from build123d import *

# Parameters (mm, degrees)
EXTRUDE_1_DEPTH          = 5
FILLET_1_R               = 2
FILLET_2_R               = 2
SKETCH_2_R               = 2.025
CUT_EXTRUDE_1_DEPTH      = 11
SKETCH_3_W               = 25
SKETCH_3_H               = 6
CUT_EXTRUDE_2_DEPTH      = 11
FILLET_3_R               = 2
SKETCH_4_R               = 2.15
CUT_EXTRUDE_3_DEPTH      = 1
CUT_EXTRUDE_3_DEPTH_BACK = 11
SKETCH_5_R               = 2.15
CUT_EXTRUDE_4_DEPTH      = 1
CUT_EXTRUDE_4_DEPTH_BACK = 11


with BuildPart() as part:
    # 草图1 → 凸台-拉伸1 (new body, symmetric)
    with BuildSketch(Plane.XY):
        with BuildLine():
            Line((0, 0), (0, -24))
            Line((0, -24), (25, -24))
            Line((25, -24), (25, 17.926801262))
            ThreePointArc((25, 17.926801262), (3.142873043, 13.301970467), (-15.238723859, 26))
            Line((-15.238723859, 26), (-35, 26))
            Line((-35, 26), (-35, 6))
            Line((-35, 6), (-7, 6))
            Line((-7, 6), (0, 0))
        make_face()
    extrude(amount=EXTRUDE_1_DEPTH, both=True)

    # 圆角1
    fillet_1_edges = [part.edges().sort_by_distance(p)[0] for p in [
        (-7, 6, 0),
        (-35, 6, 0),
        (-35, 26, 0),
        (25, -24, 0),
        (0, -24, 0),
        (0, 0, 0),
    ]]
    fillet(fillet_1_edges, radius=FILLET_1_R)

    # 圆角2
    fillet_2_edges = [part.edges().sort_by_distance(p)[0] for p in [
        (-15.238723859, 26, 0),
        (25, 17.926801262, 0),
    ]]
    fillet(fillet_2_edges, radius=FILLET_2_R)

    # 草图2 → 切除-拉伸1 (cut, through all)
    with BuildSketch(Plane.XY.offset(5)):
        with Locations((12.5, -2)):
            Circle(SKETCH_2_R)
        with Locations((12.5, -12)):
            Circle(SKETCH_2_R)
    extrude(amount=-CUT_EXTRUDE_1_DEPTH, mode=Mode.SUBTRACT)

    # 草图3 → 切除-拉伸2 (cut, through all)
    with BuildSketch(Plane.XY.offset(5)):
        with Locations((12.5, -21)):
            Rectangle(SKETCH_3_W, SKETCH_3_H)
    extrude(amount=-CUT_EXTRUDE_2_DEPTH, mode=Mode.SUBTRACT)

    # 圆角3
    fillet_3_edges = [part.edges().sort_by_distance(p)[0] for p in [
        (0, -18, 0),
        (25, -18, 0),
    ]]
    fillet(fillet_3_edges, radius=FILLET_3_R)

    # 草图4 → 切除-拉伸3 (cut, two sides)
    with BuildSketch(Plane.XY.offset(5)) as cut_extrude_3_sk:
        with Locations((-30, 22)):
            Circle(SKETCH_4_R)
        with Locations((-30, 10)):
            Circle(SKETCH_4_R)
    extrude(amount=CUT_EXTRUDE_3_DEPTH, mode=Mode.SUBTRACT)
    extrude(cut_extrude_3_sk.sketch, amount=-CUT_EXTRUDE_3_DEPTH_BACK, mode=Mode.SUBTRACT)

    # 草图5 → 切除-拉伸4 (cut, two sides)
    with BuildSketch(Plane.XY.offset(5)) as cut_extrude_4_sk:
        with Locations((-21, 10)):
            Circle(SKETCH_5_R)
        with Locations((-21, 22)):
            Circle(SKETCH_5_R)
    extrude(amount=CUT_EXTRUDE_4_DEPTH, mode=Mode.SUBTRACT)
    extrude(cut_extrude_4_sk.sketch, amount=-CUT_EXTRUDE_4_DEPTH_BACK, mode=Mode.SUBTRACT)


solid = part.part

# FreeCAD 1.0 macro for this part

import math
import FreeCAD as App
import Part
import Sketcher

V = App.Vector


def edges_at(feature, points):
    """Names of the edges that pass closest to the given points."""
    edges = feature.Shape.Edges
    near = lambda p: min(range(len(edges)), key=lambda i: edges[i].distToShape(Part.Vertex(*p))[0])
    return sorted({f"Edge{near(p) + 1}" for p in points})

doc = App.newDocument("Part")
params = doc.addObject("Spreadsheet::Sheet", "Params")
for row, (alias, value) in enumerate([
    ("sketch1_width", "25 mm"),
    ("sketch1_width2", "28 mm"),
    ("sketch1_height", "24 mm"),
    ("sketch1_height2", "20 mm"),
    ("sketch1_radius", "28.25 mm"),
    ("pad1_length", "10 mm"),
    ("fillet_radius", "2 mm"),
    ("fillet2_radius", "2 mm"),
    ("sketch2_diameter", "4.05 mm"),
    ("sketch3_width", "25 mm"),
    ("sketch3_height", "6 mm"),
    ("fillet3_radius", "2 mm"),
    ("sketch4_diameter", "4.3 mm"),
    ("sketch5_diameter", "4.3 mm"),
], start=1):
    params.set(f"A{row}", alias)
    params.set(f"B{row}", "=" + value)
    params.setAlias(f"B{row}", alias)

body = doc.addObject("PartDesign::Body", "Body")

# Sketch on XY plane
sketch1 = doc.addObject("Sketcher::SketchObject", "Sketch")
body.addObject(sketch1)
sketch1.AttachmentSupport = (doc.XY_Plane, [""])
sketch1.MapMode = "FlatFace"
sketch1.addGeometry([
    Part.LineSegment(V(0, 0, 0), V(0, -24, 0)),  # 0
    Part.LineSegment(V(0, -24, 0), V(25, -24, 0)),  # 1
    Part.LineSegment(V(25, -24, 0), V(25, 18, 0)),  # 2
    Part.ArcOfCircle(Part.Circle(V(9, 41, 0), V(0, 0, 1), 28), math.radians(-148), math.radians(-55)),  # 3
    Part.LineSegment(V(-15, 26, 0), V(-35, 26, 0)),  # 4
    Part.LineSegment(V(-35, 26, 0), V(-35, 6, 0)),  # 5
    Part.LineSegment(V(-35, 6, 0), V(-7, 6, 0)),  # 6
    Part.LineSegment(V(-7, 6, 0), V(0, 0, 0)),  # 7
], False)
sketch1.addConstraint([
    Sketcher.Constraint("Coincident", 0, 2, 1, 1),
    Sketcher.Constraint("Coincident", 1, 2, 2, 1),
    Sketcher.Constraint("Coincident", 2, 2, 3, 2),
    Sketcher.Constraint("Coincident", 3, 1, 4, 1),
    Sketcher.Constraint("Coincident", 4, 2, 5, 1),
    Sketcher.Constraint("Coincident", 5, 2, 6, 1),
    Sketcher.Constraint("Coincident", 6, 2, 7, 1),
    Sketcher.Constraint("Coincident", 7, 2, 0, 1),
    Sketcher.Constraint("Vertical", 0),
    Sketcher.Constraint("Horizontal", 1),
    Sketcher.Constraint("Vertical", 2),
    Sketcher.Constraint("Horizontal", 4),
    Sketcher.Constraint("Vertical", 5),
    Sketcher.Constraint("Horizontal", 6),
    Sketcher.Constraint("Coincident", 7, 2, -1, 1),
    Sketcher.Constraint("DistanceX", 1, 1, 1, 2, 25.0),
    Sketcher.Constraint("DistanceX", 6, 1, 6, 2, 28.0),
    Sketcher.Constraint("DistanceY", 0, 2, 0, 1, 24.0),
    Sketcher.Constraint("DistanceY", 5, 2, 5, 1, 20.0),
    Sketcher.Constraint("Radius", 3, 28.25),
    Sketcher.Constraint("DistanceY", -1, 1, 3, 3, 41.0),
    Sketcher.Constraint("DistanceY", -1, 1, 3, 1, 26.0),
    Sketcher.Constraint("DistanceX", 4, 2, -1, 1, 35.0),
    Sketcher.Constraint("DistanceX", -1, 1, 3, 3, 8.7),
])
sketch1.setExpression("Constraints[15]", "Params.sketch1_width")
sketch1.setExpression("Constraints[16]", "Params.sketch1_width2")
sketch1.setExpression("Constraints[17]", "Params.sketch1_height")
sketch1.setExpression("Constraints[18]", "Params.sketch1_height2")
sketch1.setExpression("Constraints[19]", "Params.sketch1_radius")
pad1 = doc.addObject("PartDesign::Pad", "Pad")
body.addObject(pad1)
pad1.Profile = sketch1
pad1.setExpression("Length", "Params.pad1_length")
pad1.Midplane = True
doc.recompute()

fillet = doc.addObject("PartDesign::Fillet", "Fillet")
body.addObject(fillet)
fillet.Base = (pad1, edges_at(pad1, [
    (-7, 6, 0),
    (-35, 6, 0),
    (-35, 26, 0),
    (25, -24, 0),
    (0, -24, 0),
    (0, 0, 0),
]))
fillet.setExpression("Radius", "Params.fillet_radius")
doc.recompute()

fillet2 = doc.addObject("PartDesign::Fillet", "Fillet001")
body.addObject(fillet2)
fillet2.Base = (fillet, edges_at(fillet, [(-15.239, 26, 0), (25, 17.927, 0)]))
fillet2.setExpression("Radius", "Params.fillet2_radius")

# Sketch on XY plane
sketch2 = doc.addObject("Sketcher::SketchObject", "Sketch001")
body.addObject(sketch2)
sketch2.AttachmentSupport = (doc.XY_Plane, [""])
sketch2.MapMode = "FlatFace"
sketch2.AttachmentOffset = App.Placement(V(0, 0, 5), App.Rotation())
sketch2.addGeometry([
    Part.Circle(V(12.5, -2, 0), V(0, 0, 1), 2),
    Part.Circle(V(12.5, -12, 0), V(0, 0, 1), 2),
], False)
sketch2.addConstraint([
    Sketcher.Constraint("Equal", 0, 1),
    Sketcher.Constraint("Vertical", 0, 3, 1, 3),
    Sketcher.Constraint("Diameter", 0, 4.05),
    Sketcher.Constraint("DistanceY", 0, 3, -1, 1, 2.0),
    Sketcher.Constraint("DistanceY", 1, 3, -1, 1, 12.0),
    Sketcher.Constraint("DistanceX", -1, 1, 0, 3, 12.5),
])
sketch2.setExpression("Constraints[2]", "Params.sketch2_diameter")
pocket1 = doc.addObject("PartDesign::Pocket", "Pocket")
body.addObject(pocket1)
pocket1.Profile = sketch2
pocket1.Type = "ThroughAll"

# Sketch on XY plane
sketch3 = doc.addObject("Sketcher::SketchObject", "Sketch002")
body.addObject(sketch3)
sketch3.AttachmentSupport = (doc.XY_Plane, [""])
sketch3.MapMode = "FlatFace"
sketch3.AttachmentOffset = App.Placement(V(0, 0, 5), App.Rotation())
sketch3.addGeometry([
    Part.LineSegment(V(0, -18, 0), V(0, -24, 0)),
    Part.LineSegment(V(0, -24, 0), V(25, -24, 0)),
    Part.LineSegment(V(25, -24, 0), V(25, -18, 0)),
    Part.LineSegment(V(25, -18, 0), V(0, -18, 0)),
], False)
sketch3.addConstraint([
    Sketcher.Constraint("Coincident", 0, 2, 1, 1),
    Sketcher.Constraint("Coincident", 1, 2, 2, 1),
    Sketcher.Constraint("Coincident", 2, 2, 3, 1),
    Sketcher.Constraint("Coincident", 3, 2, 0, 1),
    Sketcher.Constraint("Vertical", 0),
    Sketcher.Constraint("Horizontal", 1),
    Sketcher.Constraint("Vertical", 2),
    Sketcher.Constraint("Horizontal", 3),
    Sketcher.Constraint("PointOnObject", 0, 2, -2),
    Sketcher.Constraint("DistanceX", 1, 1, 1, 2, 25.0),
    Sketcher.Constraint("DistanceY", 0, 2, 0, 1, 6.0),
    Sketcher.Constraint("DistanceY", 0, 2, -1, 1, 24.0),
])
sketch3.setExpression("Constraints[9]", "Params.sketch3_width")
sketch3.setExpression("Constraints[10]", "Params.sketch3_height")
pocket2 = doc.addObject("PartDesign::Pocket", "Pocket001")
body.addObject(pocket2)
pocket2.Profile = sketch3
pocket2.Type = "ThroughAll"
doc.recompute()

fillet3 = doc.addObject("PartDesign::Fillet", "Fillet002")
body.addObject(fillet3)
fillet3.Base = (pocket2, edges_at(pocket2, [(0, -18, 0), (25, -18, 0)]))
fillet3.setExpression("Radius", "Params.fillet3_radius")

# Sketch on XY plane
sketch4 = doc.addObject("Sketcher::SketchObject", "Sketch003")
body.addObject(sketch4)
sketch4.AttachmentSupport = (doc.XY_Plane, [""])
sketch4.MapMode = "FlatFace"
sketch4.AttachmentOffset = App.Placement(V(0, 0, 5), App.Rotation())
sketch4.addGeometry([
    Part.Circle(V(-30, 22, 0), V(0, 0, 1), 2.1),
    Part.Circle(V(-30, 10, 0), V(0, 0, 1), 2.1),
], False)
sketch4.addConstraint([
    Sketcher.Constraint("Equal", 0, 1),
    Sketcher.Constraint("Vertical", 0, 3, 1, 3),
    Sketcher.Constraint("Diameter", 0, 4.3),
    Sketcher.Constraint("DistanceX", 0, 3, -1, 1, 30.0),
    Sketcher.Constraint("DistanceY", -1, 1, 0, 3, 22.0),
    Sketcher.Constraint("DistanceY", -1, 1, 1, 3, 10.0),
])
sketch4.setExpression("Constraints[2]", "Params.sketch4_diameter")
pocket3 = doc.addObject("PartDesign::Pocket", "Pocket002")
body.addObject(pocket3)
pocket3.Profile = sketch4
pocket3.Type = "ThroughAll"
pocket3.Midplane = True

# Sketch on XY plane
sketch5 = doc.addObject("Sketcher::SketchObject", "Sketch004")
body.addObject(sketch5)
sketch5.AttachmentSupport = (doc.XY_Plane, [""])
sketch5.MapMode = "FlatFace"
sketch5.AttachmentOffset = App.Placement(V(0, 0, 5), App.Rotation())
sketch5.addGeometry([
    Part.Circle(V(-21, 10, 0), V(0, 0, 1), 2.1),
    Part.Circle(V(-21, 22, 0), V(0, 0, 1), 2.1),
], False)
sketch5.addConstraint([
    Sketcher.Constraint("Equal", 0, 1),
    Sketcher.Constraint("Vertical", 0, 3, 1, 3),
    Sketcher.Constraint("Diameter", 0, 4.3),
    Sketcher.Constraint("DistanceX", 0, 3, -1, 1, 21.0),
    Sketcher.Constraint("DistanceY", -1, 1, 0, 3, 10.0),
    Sketcher.Constraint("DistanceY", -1, 1, 1, 3, 22.0),
])
sketch5.setExpression("Constraints[2]", "Params.sketch5_diameter")
pocket4 = doc.addObject("PartDesign::Pocket", "Pocket003")
body.addObject(pocket4)
pocket4.Profile = sketch5
pocket4.Type = "ThroughAll"
pocket4.Midplane = True

doc.recompute()
